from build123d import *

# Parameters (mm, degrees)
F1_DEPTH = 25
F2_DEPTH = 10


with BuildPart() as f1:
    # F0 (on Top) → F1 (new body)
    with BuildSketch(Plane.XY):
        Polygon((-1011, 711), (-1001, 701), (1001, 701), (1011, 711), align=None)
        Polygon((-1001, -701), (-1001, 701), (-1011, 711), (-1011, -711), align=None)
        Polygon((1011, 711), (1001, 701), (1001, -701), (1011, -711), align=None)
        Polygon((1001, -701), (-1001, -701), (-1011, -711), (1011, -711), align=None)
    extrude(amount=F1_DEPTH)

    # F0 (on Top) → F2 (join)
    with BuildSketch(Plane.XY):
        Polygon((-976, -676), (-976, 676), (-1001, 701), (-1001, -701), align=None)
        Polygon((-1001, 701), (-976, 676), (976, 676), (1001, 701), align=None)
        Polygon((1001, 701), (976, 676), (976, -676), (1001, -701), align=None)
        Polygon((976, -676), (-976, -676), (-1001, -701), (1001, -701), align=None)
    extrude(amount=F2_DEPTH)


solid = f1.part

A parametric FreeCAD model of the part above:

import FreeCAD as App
import Part
import Sketcher

V = App.Vector
Q = App.Units.Quantity

doc = App.newDocument("Part")
body = doc.addObject("PartDesign::Body", "Body")

# Sketch on XY plane
sketch1 = body.newObject("Sketcher::SketchObject", "Sketch")
sketch1.AttachmentSupport = (doc.getObject("XY_Plane"), [""])
sketch1.MapMode = "FlatFace"
sketch1.addGeometry(Part.LineSegment(V(1011, -711, 0), V(1011, 711, 0)), False)
sketch1.addGeometry(Part.LineSegment(V(1011, 711, 0), V(-1011, 711, 0)), False)
sketch1.addGeometry(Part.LineSegment(V(-1011, 711, 0), V(-1011, -711, 0)), False)
sketch1.addGeometry(Part.LineSegment(V(-1011, -711, 0), V(1011, -711, 0)), False)
sketch1.addGeometry(Part.LineSegment(V(-1001, 701, 0), V(1001, 701, 0)), False)
sketch1.addGeometry(Part.LineSegment(V(1001, 701, 0), V(1001, -701, 0)), False)
sketch1.addGeometry(Part.LineSegment(V(1001, -701, 0), V(-1001, -701, 0)), False)
sketch1.addGeometry(Part.LineSegment(V(-1001, -701, 0), V(-1001, 701, 0)), False)
sketch1.addConstraint(Sketcher.Constraint("Coincident", 0, 2, 1, 1))
sketch1.addConstraint(Sketcher.Constraint("Coincident", 1, 2, 2, 1))
sketch1.addConstraint(Sketcher.Constraint("Coincident", 2, 2, 3, 1))
sketch1.addConstraint(Sketcher.Constraint("Coincident", 3, 2, 0, 1))
sketch1.addConstraint(Sketcher.Constraint("Coincident", 4, 2, 5, 1))
sketch1.addConstraint(Sketcher.Constraint("Coincident", 5, 2, 6, 1))
sketch1.addConstraint(Sketcher.Constraint("Coincident", 6, 2, 7, 1))
sketch1.addConstraint(Sketcher.Constraint("Coincident", 7, 2, 4, 1))
sketch1.addConstraint(Sketcher.Constraint("Vertical", 0))
sketch1.addConstraint(Sketcher.Constraint("Horizontal", 1))
sketch1.addConstraint(Sketcher.Constraint("Vertical", 2))
sketch1.addConstraint(Sketcher.Constraint("Horizontal", 3))
sketch1.addConstraint(Sketcher.Constraint("Horizontal", 4))
sketch1.addConstraint(Sketcher.Constraint("Vertical", 5))
sketch1.addConstraint(Sketcher.Constraint("Horizontal", 6))
sketch1.addConstraint(Sketcher.Constraint("Vertical", 7))
sketch1.addConstraint(Sketcher.Constraint("Symmetric", 0, 2, 2, 2, -1, 1))
sketch1.addConstraint(Sketcher.Constraint("Symmetric", 4, 2, 6, 2, -1, 1))
sketch1.addConstraint(Sketcher.Constraint("DistanceX", 1, 2, 1, 1, Q("2022 mm")))
sketch1.addConstraint(Sketcher.Constraint("DistanceX", 4, 1, 4, 2, Q("2002 mm")))
sketch1.addConstraint(Sketcher.Constraint("DistanceY", 0, 1, 0, 2, Q("1422 mm")))
sketch1.addConstraint(Sketcher.Constraint("DistanceY", 5, 2, 5, 1, Q("1402 mm")))
pad1 = body.newObject("PartDesign::Pad", "Pad")
pad1.Profile = sketch1
pad1.Length = 25

# Sketch on XY plane
sketch2 = body.newObject("Sketcher::SketchObject", "Sketch001")
sketch2.AttachmentSupport = (doc.getObject("XY_Plane"), [""])
sketch2.MapMode = "FlatFace"
sketch2.addGeometry(Part.LineSegment(V(1001, -701, 0), V(1001, 701, 0)), False)
sketch2.addGeometry(Part.LineSegment(V(1001, 701, 0), V(-1001, 701, 0)), False)
sketch2.addGeometry(Part.LineSegment(V(-1001, 701, 0), V(-1001, -701, 0)), False)
sketch2.addGeometry(Part.LineSegment(V(-1001, -701, 0), V(1001, -701, 0)), False)
sketch2.addGeometry(Part.LineSegment(V(-976, -676, 0), V(-976, 676, 0)), False)
sketch2.addGeometry(Part.LineSegment(V(-976, 676, 0), V(976, 676, 0)), False)
sketch2.addGeometry(Part.LineSegment(V(976, 676, 0), V(976, -676, 0)), False)
sketch2.addGeometry(Part.LineSegment(V(976, -676, 0), V(-976, -676, 0)), False)
sketch2.addConstraint(Sketcher.Constraint("Coincident", 0, 2, 1, 1))
sketch2.addConstraint(Sketcher.Constraint("Coincident", 1, 2, 2, 1))
sketch2.addConstraint(Sketcher.Constraint("Coincident", 2, 2, 3, 1))
sketch2.addConstraint(Sketcher.Constraint("Coincident", 3, 2, 0, 1))
sketch2.addConstraint(Sketcher.Constraint("Coincident", 4, 2, 5, 1))
sketch2.addConstraint(Sketcher.Constraint("Coincident", 5, 2, 6, 1))
sketch2.addConstraint(Sketcher.Constraint("Coincident", 6, 2, 7, 1))
sketch2.addConstraint(Sketcher.Constraint("Coincident", 7, 2, 4, 1))
sketch2.addConstraint(Sketcher.Constraint("Vertical", 0))
sketch2.addConstraint(Sketcher.Constraint("Horizontal", 1))
sketch2.addConstraint(Sketcher.Constraint("Vertical", 2))
sketch2.addConstraint(Sketcher.Constraint("Horizontal", 3))
sketch2.addConstraint(Sketcher.Constraint("Vertical", 4))
sketch2.addConstraint(Sketcher.Constraint("Horizontal", 5))
sketch2.addConstraint(Sketcher.Constraint("Vertical", 6))
sketch2.addConstraint(Sketcher.Constraint("Horizontal", 7))
sketch2.addConstraint(Sketcher.Constraint("Symmetric", 0, 2, 2, 2, -1, 1))
sketch2.addConstraint(Sketcher.Constraint("Symmetric", 4, 2, 6, 2, -1, 1))
sketch2.addConstraint(Sketcher.Constraint("DistanceX", 1, 2, 1, 1, Q("2002 mm")))
sketch2.addConstraint(Sketcher.Constraint("DistanceX", 5, 1, 5, 2, Q("1952 mm")))
sketch2.addConstraint(Sketcher.Constraint("DistanceY", 0, 1, 0, 2, Q("1402 mm")))
sketch2.addConstraint(Sketcher.Constraint("DistanceY", 4, 1, 4, 2, Q("1352 mm")))
pad2 = body.newObject("PartDesign::Pad", "Pad001")
pad2.Profile = sketch2
pad2.Length = 10

doc.recompute()
